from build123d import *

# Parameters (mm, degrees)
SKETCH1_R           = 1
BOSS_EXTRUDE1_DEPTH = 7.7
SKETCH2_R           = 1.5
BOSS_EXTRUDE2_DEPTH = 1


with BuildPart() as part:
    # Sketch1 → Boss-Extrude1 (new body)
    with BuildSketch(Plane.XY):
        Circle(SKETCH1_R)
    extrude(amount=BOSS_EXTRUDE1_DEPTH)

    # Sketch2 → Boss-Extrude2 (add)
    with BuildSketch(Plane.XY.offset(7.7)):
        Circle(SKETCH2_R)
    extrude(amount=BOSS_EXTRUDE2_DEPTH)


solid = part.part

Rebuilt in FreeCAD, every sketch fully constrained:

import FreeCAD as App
import Part
import Sketcher
Q = App.Units.Quantity

doc = App.newDocument("Part")
params = doc.addObject("Spreadsheet::Sheet", "Params")
for row, (alias, value) in enumerate([
    ("sketch1_diameter", "2 mm"),
    ("pad1_length", "7.7 mm"),
    ("sketch2_diameter", "3 mm"),
    ("pad2_length", "1 mm"),
], start=1):
    params.set(f"A{row}", alias)
    params.set(f"B{row}", "=" + value)
    params.setAlias(f"B{row}", alias)

body = doc.addObject("PartDesign::Body", "Body")

# Sketch on XY plane
sketch1 = doc.addObject("Sketcher::SketchObject", "Sketch")
body.addObject(sketch1)
sketch1.AttachmentSupport = (doc.XY_Plane, [""])
sketch1.MapMode = "FlatFace"
sketch1.addGeometry(Part.Circle(App.Vector(0, 0, 0), App.Vector(0, 0, 1), 1), False)
sketch1.addConstraint(Sketcher.Constraint("Coincident", 0, 3, -1, 1))
sketch1.addConstraint(Sketcher.Constraint("Diameter", 0, Q("2 mm")))
sketch1.setExpression("Constraints[1]", "Params.sketch1_diameter")
pad1 = doc.addObject("PartDesign::Pad", "Pad")
body.addObject(pad1)
pad1.Profile = sketch1
pad1.setExpression("Length", "Params.pad1_length")

# Sketch on XY plane
sketch2 = doc.addObject("Sketcher::SketchObject", "Sketch001")
body.addObject(sketch2)
sketch2.AttachmentSupport = (doc.XY_Plane, [""])
sketch2.MapMode = "FlatFace"
sketch2.AttachmentOffset = App.Placement(App.Vector(0, 0, 7.7), App.Rotation())
sketch2.addGeometry(Part.Circle(App.Vector(0, 0, 0), App.Vector(0, 0, 1), 1.5), False)
sketch2.addConstraint(Sketcher.Constraint("Coincident", 0, 3, -1, 1))
sketch2.addConstraint(Sketcher.Constraint("Diameter", 0, Q("3 mm")))
sketch2.setExpression("Constraints[1]", "Params.sketch2_diameter")
pad2 = doc.addObject("PartDesign::Pad", "Pad001")
body.addObject(pad2)
pad2.Profile = sketch2
pad2.setExpression("Length", "Params.pad2_length")

doc.recompute()
